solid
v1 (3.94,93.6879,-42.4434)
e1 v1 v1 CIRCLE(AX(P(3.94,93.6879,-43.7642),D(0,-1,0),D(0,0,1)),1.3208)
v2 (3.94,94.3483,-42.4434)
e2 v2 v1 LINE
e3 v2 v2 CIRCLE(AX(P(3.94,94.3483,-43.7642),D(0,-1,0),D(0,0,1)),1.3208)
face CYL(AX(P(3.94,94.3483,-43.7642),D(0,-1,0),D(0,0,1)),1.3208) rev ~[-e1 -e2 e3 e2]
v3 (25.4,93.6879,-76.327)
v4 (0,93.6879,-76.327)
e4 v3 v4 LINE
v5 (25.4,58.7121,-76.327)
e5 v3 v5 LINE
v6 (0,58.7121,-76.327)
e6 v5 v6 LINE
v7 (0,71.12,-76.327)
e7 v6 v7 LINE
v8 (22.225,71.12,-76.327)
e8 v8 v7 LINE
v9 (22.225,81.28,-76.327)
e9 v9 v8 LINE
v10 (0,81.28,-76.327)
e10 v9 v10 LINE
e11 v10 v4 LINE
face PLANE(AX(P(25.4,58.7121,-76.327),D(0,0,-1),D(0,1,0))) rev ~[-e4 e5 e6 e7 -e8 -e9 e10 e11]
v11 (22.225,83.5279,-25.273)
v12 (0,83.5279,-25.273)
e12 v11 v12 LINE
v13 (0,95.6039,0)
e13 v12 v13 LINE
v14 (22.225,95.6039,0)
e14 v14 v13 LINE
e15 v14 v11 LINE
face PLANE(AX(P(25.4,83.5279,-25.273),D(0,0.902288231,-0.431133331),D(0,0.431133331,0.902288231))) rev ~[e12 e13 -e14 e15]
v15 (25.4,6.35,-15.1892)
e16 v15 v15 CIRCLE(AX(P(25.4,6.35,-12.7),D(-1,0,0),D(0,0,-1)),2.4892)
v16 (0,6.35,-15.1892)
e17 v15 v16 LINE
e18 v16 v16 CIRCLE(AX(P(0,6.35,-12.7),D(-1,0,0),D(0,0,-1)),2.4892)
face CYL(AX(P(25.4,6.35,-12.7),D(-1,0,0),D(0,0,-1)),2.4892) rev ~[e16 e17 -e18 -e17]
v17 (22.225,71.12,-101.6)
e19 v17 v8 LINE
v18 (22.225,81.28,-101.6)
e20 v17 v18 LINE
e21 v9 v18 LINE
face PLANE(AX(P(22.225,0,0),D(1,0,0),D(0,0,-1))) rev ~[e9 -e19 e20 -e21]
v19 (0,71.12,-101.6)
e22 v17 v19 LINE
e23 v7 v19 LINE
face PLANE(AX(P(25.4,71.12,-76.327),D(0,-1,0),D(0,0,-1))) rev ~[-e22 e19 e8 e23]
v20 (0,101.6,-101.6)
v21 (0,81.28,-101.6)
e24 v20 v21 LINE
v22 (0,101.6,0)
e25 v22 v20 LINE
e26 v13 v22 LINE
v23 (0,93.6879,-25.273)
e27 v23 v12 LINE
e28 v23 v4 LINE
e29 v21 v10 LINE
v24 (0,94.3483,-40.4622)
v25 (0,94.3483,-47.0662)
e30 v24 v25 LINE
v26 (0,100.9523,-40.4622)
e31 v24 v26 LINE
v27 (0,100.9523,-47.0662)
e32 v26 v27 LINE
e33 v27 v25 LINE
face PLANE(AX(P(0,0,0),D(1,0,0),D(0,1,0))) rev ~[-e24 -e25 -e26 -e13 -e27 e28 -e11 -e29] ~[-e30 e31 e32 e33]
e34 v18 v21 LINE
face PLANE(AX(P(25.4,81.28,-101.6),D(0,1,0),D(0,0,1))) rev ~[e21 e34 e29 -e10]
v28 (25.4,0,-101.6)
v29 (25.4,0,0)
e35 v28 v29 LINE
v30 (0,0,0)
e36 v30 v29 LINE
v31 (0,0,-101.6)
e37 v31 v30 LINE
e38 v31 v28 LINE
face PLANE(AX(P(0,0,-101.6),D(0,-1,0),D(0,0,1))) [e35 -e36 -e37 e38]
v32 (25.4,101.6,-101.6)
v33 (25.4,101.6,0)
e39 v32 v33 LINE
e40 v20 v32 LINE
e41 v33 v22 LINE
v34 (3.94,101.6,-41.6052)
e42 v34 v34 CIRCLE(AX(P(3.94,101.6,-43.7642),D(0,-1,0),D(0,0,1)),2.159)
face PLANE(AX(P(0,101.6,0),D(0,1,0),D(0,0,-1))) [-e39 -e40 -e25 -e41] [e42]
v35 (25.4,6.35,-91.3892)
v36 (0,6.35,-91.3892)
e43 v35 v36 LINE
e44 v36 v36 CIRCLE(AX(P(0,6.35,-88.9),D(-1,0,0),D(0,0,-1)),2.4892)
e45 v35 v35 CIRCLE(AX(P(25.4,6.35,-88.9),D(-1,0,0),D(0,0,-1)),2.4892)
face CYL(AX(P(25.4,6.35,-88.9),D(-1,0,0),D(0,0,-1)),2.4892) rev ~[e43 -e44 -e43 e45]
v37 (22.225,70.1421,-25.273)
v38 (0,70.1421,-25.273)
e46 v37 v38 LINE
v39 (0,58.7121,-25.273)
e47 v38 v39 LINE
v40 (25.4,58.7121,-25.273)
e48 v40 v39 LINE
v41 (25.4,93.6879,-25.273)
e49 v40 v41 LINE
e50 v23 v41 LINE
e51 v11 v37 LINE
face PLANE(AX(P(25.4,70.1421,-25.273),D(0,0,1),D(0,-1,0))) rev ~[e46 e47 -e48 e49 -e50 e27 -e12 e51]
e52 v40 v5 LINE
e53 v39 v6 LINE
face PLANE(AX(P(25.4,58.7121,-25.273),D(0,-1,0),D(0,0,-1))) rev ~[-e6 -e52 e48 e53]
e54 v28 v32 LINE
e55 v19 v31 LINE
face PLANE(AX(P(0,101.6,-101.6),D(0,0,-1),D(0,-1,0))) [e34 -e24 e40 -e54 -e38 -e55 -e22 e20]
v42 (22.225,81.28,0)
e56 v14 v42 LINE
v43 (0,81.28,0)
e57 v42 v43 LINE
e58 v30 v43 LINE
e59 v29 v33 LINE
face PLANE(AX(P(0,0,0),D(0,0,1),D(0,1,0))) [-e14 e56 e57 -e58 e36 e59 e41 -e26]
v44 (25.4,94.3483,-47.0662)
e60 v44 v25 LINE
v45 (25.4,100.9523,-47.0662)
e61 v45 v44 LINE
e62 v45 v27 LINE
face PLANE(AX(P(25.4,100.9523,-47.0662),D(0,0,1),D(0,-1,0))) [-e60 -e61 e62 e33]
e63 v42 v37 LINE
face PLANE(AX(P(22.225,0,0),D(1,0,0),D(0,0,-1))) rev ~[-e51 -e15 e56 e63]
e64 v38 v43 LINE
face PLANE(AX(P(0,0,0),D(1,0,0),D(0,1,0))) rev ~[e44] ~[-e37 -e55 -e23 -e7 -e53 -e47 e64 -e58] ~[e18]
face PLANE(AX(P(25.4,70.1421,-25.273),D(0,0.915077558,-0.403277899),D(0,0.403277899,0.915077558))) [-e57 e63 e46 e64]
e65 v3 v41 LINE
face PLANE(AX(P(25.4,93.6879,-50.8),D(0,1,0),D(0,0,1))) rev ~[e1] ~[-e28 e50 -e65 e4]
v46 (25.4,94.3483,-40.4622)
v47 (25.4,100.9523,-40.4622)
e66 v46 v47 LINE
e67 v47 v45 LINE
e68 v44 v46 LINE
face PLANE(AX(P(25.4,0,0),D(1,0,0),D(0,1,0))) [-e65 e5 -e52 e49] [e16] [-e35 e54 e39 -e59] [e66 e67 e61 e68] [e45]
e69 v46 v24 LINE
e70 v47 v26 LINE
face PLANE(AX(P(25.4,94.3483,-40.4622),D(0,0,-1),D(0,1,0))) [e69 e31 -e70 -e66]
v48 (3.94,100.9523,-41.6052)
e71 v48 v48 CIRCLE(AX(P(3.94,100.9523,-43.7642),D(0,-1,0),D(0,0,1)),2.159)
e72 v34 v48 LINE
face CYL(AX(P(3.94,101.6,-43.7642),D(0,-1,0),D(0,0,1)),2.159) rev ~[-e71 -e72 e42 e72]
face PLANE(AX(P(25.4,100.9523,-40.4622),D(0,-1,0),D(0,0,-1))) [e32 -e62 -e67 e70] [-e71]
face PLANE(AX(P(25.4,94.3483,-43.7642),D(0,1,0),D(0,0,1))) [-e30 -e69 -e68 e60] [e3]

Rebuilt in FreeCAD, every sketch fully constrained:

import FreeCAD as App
import Part
import Sketcher
Q = App.Units.Quantity

doc = App.newDocument("Part")
params = doc.addObject("Spreadsheet::Sheet", "Params")
for row, (alias, value) in enumerate([
    ("sketch1_width", "4 in"),
    ("pad1_length", "1 in"),
    ("sketch2_width", "0.4 in"),
    ("sketch2_width2", "0.45 in"),
    ("sketch2_height", "2.01 in"),
    ("sketch2_height2", "0.995 in"),
    ("pocket1_length", "1 in"),
    ("sketch3_diameter", "0.196 in"),
    ("hole_diameter", "0.196 in"),
    ("sketch4_height", "0.995 in"),
    ("pad2_length", "0.125 in"),
    ("sketch5_width", "0.26 in"),
    ("pocket2_length", "1 in"),
    ("sketch6_diameter", "0.17 in"),
    ("hole2_diameter", "0.17 in"),
    ("hole2_depth", "0.25 in"),
    ("sketch7_diameter", "0.104 in"),
    ("hole3_diameter", "0.104 in"),
    ("hole3_depth", "0.432 in"),
], start=1):
    params.set(f"A{row}", alias)
    params.set(f"B{row}", "=" + value)
    params.setAlias(f"B{row}", alias)

body = doc.addObject("PartDesign::Body", "Body")
body.AllowCompound = True

sketch1 = body.newObject("Sketcher::SketchObject", "Sketch")
sketch1.AttachmentSupport = (doc.getObject("YZ_Plane"), [""])
sketch1.MapMode = "FlatFace"
sketch1.addGeometry([
    Part.LineSegment(App.Vector(102, 0, 0), App.Vector(0, 0, 0)),
    Part.LineSegment(App.Vector(0, 0, 0), App.Vector(0, -102, 0)),
    Part.LineSegment(App.Vector(0, -102, 0), App.Vector(102, -102, 0)),
    Part.LineSegment(App.Vector(102, -102, 0), App.Vector(102, 0, 0)),
], False)
sketch1.addConstraint([
    Sketcher.Constraint("Coincident", 0, 2, 1, 1),
    Sketcher.Constraint("Coincident", 1, 2, 2, 1),
    Sketcher.Constraint("Coincident", 2, 2, 3, 1),
    Sketcher.Constraint("Coincident", 3, 2, 0, 1),
    Sketcher.Constraint("Horizontal", 0),
    Sketcher.Constraint("Vertical", 1),
    Sketcher.Constraint("Horizontal", 2),
    Sketcher.Constraint("Vertical", 3),
    Sketcher.Constraint("Coincident", 0, 2, -1, 1),
    Sketcher.Constraint("Equal", 2, 1),
    Sketcher.Constraint("DistanceX", 0, 2, 0, 1, Q("4 in")),
])
sketch1.setExpression("Constraints[10]", "Params.sketch1_width")
pad1 = body.newObject("PartDesign::Pad", "Pad")
pad1.Profile = sketch1
pad1.setExpression("Length", "Params.pad1_length")

sketch2 = body.newObject("Sketcher::SketchObject", "Sketch001")
sketch2.AttachmentSupport = (doc.getObject("YZ_Plane"), [""])
sketch2.MapMode = "FlatFace"
sketch2.AttachmentOffset = App.Placement(App.Vector(0, 0, 1 * 25.4), App.Rotation())
sketch2.addGeometry([
    Part.LineSegment(App.Vector(84, -25, 0), App.Vector(96, 0, 0)),
    Part.LineSegment(App.Vector(96, 0, 0), App.Vector(81, 0, 0)),
    Part.LineSegment(App.Vector(81, 0, 0), App.Vector(70, -25, 0)),
    Part.LineSegment(App.Vector(70, -25, 0), App.Vector(59, -25, 0)),
    Part.LineSegment(App.Vector(59, -25, 0), App.Vector(59, -76, 0)),
    Part.LineSegment(App.Vector(59, -76, 0), App.Vector(71, -76, 0)),
    Part.LineSegment(App.Vector(71, -76, 0), App.Vector(71, -102, 0)),
    Part.LineSegment(App.Vector(71, -102, 0), App.Vector(81, -102, 0)),
    Part.LineSegment(App.Vector(81, -102, 0), App.Vector(81, -76, 0)),
    Part.LineSegment(App.Vector(81, -76, 0), App.Vector(94, -76, 0)),
    Part.LineSegment(App.Vector(94, -76, 0), App.Vector(94, -25, 0)),
    Part.LineSegment(App.Vector(94, -25, 0), App.Vector(84, -25, 0)),
], False)
sketch2.addConstraint([
    Sketcher.Constraint("Coincident", 0, 2, 1, 1),
    Sketcher.Constraint("Coincident", 1, 2, 2, 1),
    Sketcher.Constraint("Coincident", 2, 2, 3, 1),
    Sketcher.Constraint("Coincident", 3, 2, 4, 1),
    Sketcher.Constraint("Coincident", 4, 2, 5, 1),
    Sketcher.Constraint("Coincident", 5, 2, 6, 1),
    Sketcher.Constraint("Coincident", 6, 2, 7, 1),
    Sketcher.Constraint("Coincident", 7, 2, 8, 1),
    Sketcher.Constraint("Coincident", 8, 2, 9, 1),
    Sketcher.Constraint("Coincident", 9, 2, 10, 1),
    Sketcher.Constraint("Coincident", 10, 2, 11, 1),
    Sketcher.Constraint("Coincident", 11, 2, 0, 1),
    Sketcher.Constraint("Horizontal", 1),
    Sketcher.Constraint("Horizontal", 3),
    Sketcher.Constraint("Vertical", 4),
    Sketcher.Constraint("Horizontal", 5),
    Sketcher.Constraint("Vertical", 6),
    Sketcher.Constraint("Horizontal", 7),
    Sketcher.Constraint("Vertical", 8),
    Sketcher.Constraint("Horizontal", 9),
    Sketcher.Constraint("Vertical", 10),
    Sketcher.Constraint("Horizontal", 11),
    Sketcher.Constraint("PointOnObject", 0, 2, -1),
    Sketcher.Constraint("Horizontal", 5, 2, 8, 2),
    Sketcher.Constraint("Horizontal", 3, 2, 10, 2),
    Sketcher.Constraint("Vertical", 1, 2, 7, 2),
    Sketcher.Constraint("Equal", 5, 9),
    Sketcher.Constraint("Equal", 7, 11),
    Sketcher.Constraint("DistanceX", 7, 1, 7, 2, Q("0.4 in")),
    Sketcher.Constraint("DistanceX", 3, 2, 3, 1, Q("0.45 in")),
    Sketcher.Constraint("DistanceY", 4, 2, 4, 1, Q("2.01 in")),
    Sketcher.Constraint("DistanceY", 6, 2, -1, 1, Q("4 in")),
    Sketcher.Constraint("DistanceX", 4, 2, 9, 2, Q("1.377 in")),
    Sketcher.Constraint("DistanceX", -1, 1, 1, 2, Q("3.2 in")),
    Sketcher.Constraint("DistanceY", 6, 2, 6, 1, Q("0.995 in")),
    Sketcher.Constraint("Angle", 0, Q("64.4605 deg")),
])
sketch2.setExpression("Constraints[28]", "Params.sketch2_width")
sketch2.setExpression("Constraints[29]", "Params.sketch2_width2")
sketch2.setExpression("Constraints[30]", "Params.sketch2_height")
sketch2.setExpression("Constraints[34]", "Params.sketch2_height2")
pocket1 = body.newObject("PartDesign::Pocket", "Pocket")
pocket1.Profile = sketch2
pocket1.setExpression("Length", "Params.pocket1_length")

sketch3 = body.newObject("Sketcher::SketchObject", "Sketch002")
sketch3.AttachmentSupport = (doc.getObject("YZ_Plane"), [""])
sketch3.MapMode = "FlatFace"
sketch3.AttachmentOffset = App.Placement(App.Vector(0, 0, 1 * 25.4), App.Rotation())
sketch3.addGeometry([
    Part.Circle(App.Vector(6.3, -88.9, 0), App.Vector(0, 0, 1), 2.5),
    Part.Circle(App.Vector(6.3, -12.7, 0), App.Vector(0, 0, 1), 2.5),
], False)
sketch3.addConstraint([
    Sketcher.Constraint("Equal", 0, 1),
    Sketcher.Constraint("Vertical", 0, 3, 1, 3),
    Sketcher.Constraint("Diameter", 0, Q("0.196 in")),
    Sketcher.Constraint("DistanceY", 0, 3, 1, 3, Q("3 in")),
    Sketcher.Constraint("DistanceY", 0, 3, -1, 1, Q("3.5 in")),
    Sketcher.Constraint("DistanceX", -1, 1, 0, 3, Q("0.25 in")),
])
sketch3.setExpression("Constraints[2]", "Params.sketch3_diameter")
doc.recompute()
hole = body.newObject("PartDesign::Hole", "Hole")
hole.Profile = sketch3
hole.ThreadType = "None"
hole.setExpression("Diameter", "Params.hole_diameter")
hole.DepthType = "ThroughAll"

sketch4 = body.newObject("Sketcher::SketchObject", "Sketch003")
sketch4.AttachmentSupport = (doc.getObject("YZ_Plane"), [""])
sketch4.MapMode = "FlatFace"
sketch4.AttachmentOffset = App.Placement(App.Vector(0, 0, 1 * 25.4), App.Rotation())
sketch4.addGeometry([
    Part.LineSegment(App.Vector(102, -25, 0), App.Vector(102, 0, 0)),
    Part.LineSegment(App.Vector(102, 0, 0), App.Vector(59, 0, 0)),
    Part.LineSegment(App.Vector(59, 0, 0), App.Vector(59, -25, 0)),
    Part.LineSegment(App.Vector(59, -25, 0), App.Vector(102, -25, 0)),
    Part.LineSegment(App.Vector(102, -76, 0), App.Vector(59, -76, 0)),
    Part.LineSegment(App.Vector(59, -76, 0), App.Vector(59, -102, 0)),
    Part.LineSegment(App.Vector(59, -102, 0), App.Vector(102, -102, 0)),
    Part.LineSegment(App.Vector(102, -102, 0), App.Vector(102, -76, 0)),
], False)
sketch4.addConstraint([
    Sketcher.Constraint("Coincident", 0, 2, 1, 1),
    Sketcher.Constraint("Coincident", 1, 2, 2, 1),
    Sketcher.Constraint("Coincident", 2, 2, 3, 1),
    Sketcher.Constraint("Coincident", 3, 2, 0, 1),
    Sketcher.Constraint("Coincident", 4, 2, 5, 1),
    Sketcher.Constraint("Coincident", 5, 2, 6, 1),
    Sketcher.Constraint("Coincident", 6, 2, 7, 1),
    Sketcher.Constraint("Coincident", 7, 2, 4, 1),
    Sketcher.Constraint("Vertical", 0),
    Sketcher.Constraint("Horizontal", 1),
    Sketcher.Constraint("Vertical", 2),
    Sketcher.Constraint("Horizontal", 3),
    Sketcher.Constraint("Horizontal", 4),
    Sketcher.Constraint("Vertical", 5),
    Sketcher.Constraint("Horizontal", 6),
    Sketcher.Constraint("Vertical", 7),
    Sketcher.Constraint("PointOnObject", 0, 2, -1),
    Sketcher.Constraint("Vertical", 2, 2, 4, 2),
    Sketcher.Constraint("Vertical", 3, 2, 6, 2),
    Sketcher.Constraint("Equal", 2, 5),
    Sketcher.Constraint("DistanceX", -1, 1, 0, 2, Q("4 in")),
    Sketcher.Constraint("DistanceY", 5, 2, -1, 1, Q("4 in")),
    Sketcher.Constraint("DistanceY", 0, 1, 0, 2, Q("0.995 in")),
    Sketcher.Constraint("DistanceX", 1, 2, 1, 1, Q("1.6885 in")),
])
sketch4.setExpression("Constraints[22]", "Params.sketch4_height")
pad2 = body.newObject("PartDesign::Pad", "Pad001")
pad2.Profile = sketch4
pad2.setExpression("Length", "Params.pad2_length")
pad2.Reversed = True

sketch5 = body.newObject("Sketcher::SketchObject", "Sketch004")
sketch5.AttachmentSupport = (doc.getObject("YZ_Plane"), [""])
sketch5.MapMode = "FlatFace"
sketch5.AttachmentOffset = App.Placement(App.Vector(0, 0, 1 * 25.4), App.Rotation())
sketch5.addGeometry([
    Part.LineSegment(App.Vector(101, -47, 0), App.Vector(101, -40, 0)),
    Part.LineSegment(App.Vector(101, -40, 0), App.Vector(94, -40, 0)),
    Part.LineSegment(App.Vector(94, -40, 0), App.Vector(94, -47, 0)),
    Part.LineSegment(App.Vector(94, -47, 0), App.Vector(101, -47, 0)),
], False)
sketch5.addConstraint([
    Sketcher.Constraint("Coincident", 0, 2, 1, 1),
    Sketcher.Constraint("Coincident", 1, 2, 2, 1),
    Sketcher.Constraint("Coincident", 2, 2, 3, 1),
    Sketcher.Constraint("Coincident", 3, 2, 0, 1),
    Sketcher.Constraint("Vertical", 0),
    Sketcher.Constraint("Horizontal", 1),
    Sketcher.Constraint("Vertical", 2),
    Sketcher.Constraint("Horizontal", 3),
    Sketcher.Constraint("Equal", 3, 0),
    Sketcher.Constraint("DistanceX", 1, 2, 1, 1, Q("0.26 in")),
    Sketcher.Constraint("DistanceY", 0, 2, -1, 1, Q("1.593 in")),
    Sketcher.Constraint("DistanceX", -1, 1, 0, 2, Q("3.9745 in")),
])
sketch5.setExpression("Constraints[9]", "Params.sketch5_width")
pocket2 = body.newObject("PartDesign::Pocket", "Pocket001")
pocket2.Profile = sketch5
pocket2.setExpression("Length", "Params.pocket2_length")

sketch6 = body.newObject("Sketcher::SketchObject", "Sketch005")
sketch6.AttachmentSupport = (doc.getObject("XZ_Plane"), [""])
sketch6.MapMode = "FlatFace"
sketch6.AttachmentOffset = App.Placement(App.Vector(0, 0, -4 * 25.4), App.Rotation())
sketch6.addGeometry(Part.Circle(App.Vector(3.9, -43.8, 0), App.Vector(0, 0, 1), 2.2), False)
sketch6.addConstraint([
    Sketcher.Constraint("Diameter", 0, Q("0.17 in")),
    Sketcher.Constraint("DistanceY", 0, 3, -1, 1, Q("1.723 in")),
    Sketcher.Constraint("DistanceX", -1, 1, 0, 3, Q("3.94 mm")),
])
sketch6.setExpression("Constraints[0]", "Params.sketch6_diameter")
doc.recompute()
hole2 = body.newObject("PartDesign::Hole", "Hole001")
hole2.Profile = sketch6
hole2.ThreadType = "None"
hole2.setExpression("Diameter", "Params.hole2_diameter")
hole2.DepthType = "Dimension"
hole2.setExpression("Depth", "Params.hole2_depth")
hole2.DrillPoint = "Angled"
hole2.DrillPointAngle = 118
hole2.Reversed = True

sketch7 = body.newObject("Sketcher::SketchObject", "Sketch006")
sketch7.AttachmentSupport = (doc.getObject("XZ_Plane"), [""])
sketch7.MapMode = "FlatFace"
sketch7.AttachmentOffset = App.Placement(App.Vector(0, 0, -3.7145 * 25.4), App.Rotation())
sketch7.addGeometry(Part.Circle(App.Vector(3.9, -43.8, 0), App.Vector(0, 0, 1), 1.3), False)
sketch7.addConstraint([
    Sketcher.Constraint("Diameter", 0, Q("0.104 in")),
    Sketcher.Constraint("DistanceY", 0, 3, -1, 1, Q("1.723 in")),
    Sketcher.Constraint("DistanceX", -1, 1, 0, 3, Q("3.94 mm")),
])
sketch7.setExpression("Constraints[0]", "Params.sketch7_diameter")
doc.recompute()
hole3 = body.newObject("PartDesign::Hole", "Hole002")
hole3.Profile = sketch7
hole3.ThreadType = "None"
hole3.setExpression("Diameter", "Params.hole3_diameter")
hole3.DepthType = "Dimension"
hole3.setExpression("Depth", "Params.hole3_depth")
hole3.DrillPoint = "Angled"
hole3.DrillPointAngle = 118
hole3.Reversed = True

doc.recompute()
